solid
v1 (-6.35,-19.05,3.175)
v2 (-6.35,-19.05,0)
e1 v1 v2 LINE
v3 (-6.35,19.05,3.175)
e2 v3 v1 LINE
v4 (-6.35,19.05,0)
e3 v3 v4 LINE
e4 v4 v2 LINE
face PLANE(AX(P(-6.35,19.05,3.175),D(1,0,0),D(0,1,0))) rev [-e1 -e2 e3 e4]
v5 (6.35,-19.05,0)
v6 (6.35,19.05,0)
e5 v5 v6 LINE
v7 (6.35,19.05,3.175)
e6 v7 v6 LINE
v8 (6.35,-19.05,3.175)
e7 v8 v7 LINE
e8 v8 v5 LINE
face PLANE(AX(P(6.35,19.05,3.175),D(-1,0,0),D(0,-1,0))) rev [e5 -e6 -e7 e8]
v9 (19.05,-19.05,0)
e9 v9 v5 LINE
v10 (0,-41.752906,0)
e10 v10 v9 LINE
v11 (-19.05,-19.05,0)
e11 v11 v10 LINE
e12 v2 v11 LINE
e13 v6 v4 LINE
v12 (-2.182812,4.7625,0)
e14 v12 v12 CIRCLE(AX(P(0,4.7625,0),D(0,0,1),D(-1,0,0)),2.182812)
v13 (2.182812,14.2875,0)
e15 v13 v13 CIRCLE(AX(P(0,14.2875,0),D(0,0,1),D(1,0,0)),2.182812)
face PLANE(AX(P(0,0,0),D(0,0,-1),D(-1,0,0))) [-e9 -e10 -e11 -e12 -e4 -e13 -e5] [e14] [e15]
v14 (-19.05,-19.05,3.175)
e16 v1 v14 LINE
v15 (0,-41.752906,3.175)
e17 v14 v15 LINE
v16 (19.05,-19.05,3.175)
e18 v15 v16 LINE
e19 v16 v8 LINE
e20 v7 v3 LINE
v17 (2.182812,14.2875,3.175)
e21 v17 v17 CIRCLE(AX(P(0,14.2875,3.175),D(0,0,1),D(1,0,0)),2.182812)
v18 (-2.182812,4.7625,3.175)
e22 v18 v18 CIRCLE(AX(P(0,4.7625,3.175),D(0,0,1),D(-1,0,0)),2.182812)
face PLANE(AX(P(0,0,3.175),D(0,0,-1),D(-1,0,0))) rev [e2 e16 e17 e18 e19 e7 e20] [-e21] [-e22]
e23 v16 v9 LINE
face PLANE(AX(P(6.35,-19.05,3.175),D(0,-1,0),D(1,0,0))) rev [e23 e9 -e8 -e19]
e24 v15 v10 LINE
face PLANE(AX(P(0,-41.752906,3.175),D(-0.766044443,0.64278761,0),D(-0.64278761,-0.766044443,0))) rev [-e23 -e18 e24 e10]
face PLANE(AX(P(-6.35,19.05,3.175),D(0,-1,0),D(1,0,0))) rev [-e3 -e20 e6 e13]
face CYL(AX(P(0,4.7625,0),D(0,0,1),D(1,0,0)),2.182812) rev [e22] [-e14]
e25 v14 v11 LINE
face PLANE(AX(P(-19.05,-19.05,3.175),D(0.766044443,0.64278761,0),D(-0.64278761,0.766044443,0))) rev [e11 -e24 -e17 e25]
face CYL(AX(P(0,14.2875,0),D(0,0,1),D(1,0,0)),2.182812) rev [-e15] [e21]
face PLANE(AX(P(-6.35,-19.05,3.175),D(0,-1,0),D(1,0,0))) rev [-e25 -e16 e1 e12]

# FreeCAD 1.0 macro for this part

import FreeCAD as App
import Part
import Sketcher
Q = App.Units.Quantity

doc = App.newDocument("Part")
body = doc.addObject("PartDesign::Body", "Body")

# Sketch on XY plane
sketch1 = body.newObject("Sketcher::SketchObject", "Sketch")
sketch1.AttachmentSupport = (doc.getObject("XY_Plane"), [""])
sketch1.MapMode = "FlatFace"
sketch1.addGeometry(Part.LineSegment(App.Vector(-6.35, -19.05, 0), App.Vector(-19.05, -19.05, 0)), False)
sketch1.addGeometry(Part.LineSegment(App.Vector(-19.05, -19.05, 0), App.Vector(0, -41.752906, 0)), False)
sketch1.addGeometry(Part.LineSegment(App.Vector(0, -41.752906, 0), App.Vector(19.05, -19.05, 0)), False)
sketch1.addGeometry(Part.LineSegment(App.Vector(19.05, -19.05, 0), App.Vector(6.35, -19.05, 0)), False)
sketch1.addGeometry(Part.LineSegment(App.Vector(6.35, -19.05, 0), App.Vector(6.35, 19.05, 0)), False)
sketch1.addGeometry(Part.LineSegment(App.Vector(6.35, 19.05, 0), App.Vector(-6.35, 19.05, 0)), False)
sketch1.addGeometry(Part.LineSegment(App.Vector(-6.35, 19.05, 0), App.Vector(-6.35, -19.05, 0)), False)
sketch1.addConstraint(Sketcher.Constraint("Coincident", 0, 2, 1, 1))
sketch1.addConstraint(Sketcher.Constraint("Coincident", 1, 2, 2, 1))
sketch1.addConstraint(Sketcher.Constraint("Coincident", 2, 2, 3, 1))
sketch1.addConstraint(Sketcher.Constraint("Coincident", 3, 2, 4, 1))
sketch1.addConstraint(Sketcher.Constraint("Coincident", 4, 2, 5, 1))
sketch1.addConstraint(Sketcher.Constraint("Coincident", 5, 2, 6, 1))
sketch1.addConstraint(Sketcher.Constraint("Coincident", 6, 2, 0, 1))
sketch1.addConstraint(Sketcher.Constraint("Horizontal", 0))
sketch1.addConstraint(Sketcher.Constraint("Horizontal", 3))
sketch1.addConstraint(Sketcher.Constraint("Vertical", 4))
sketch1.addConstraint(Sketcher.Constraint("Horizontal", 5))
sketch1.addConstraint(Sketcher.Constraint("Vertical", 6))
sketch1.addConstraint(Sketcher.Constraint("Symmetric", 3, 2, 5, 2, -1, 1))
sketch1.addConstraint(Sketcher.Constraint("Symmetric", 0, 2, 2, 2, -2))
sketch1.addConstraint(Sketcher.Constraint("PointOnObject", 1, 2, -2))
sketch1.addConstraint(Sketcher.Constraint("Equal", 3, 5))
sketch1.addConstraint(Sketcher.Constraint("DistanceX", 0, 2, 0, 1, Q("0.5 in")))
sketch1.addConstraint(Sketcher.Constraint("DistanceY", 4, 1, 4, 2, Q("1.5 in")))
sketch1.addConstraint(Sketcher.Constraint("Angle", 1, Q("-50 deg")))
pad1 = body.newObject("PartDesign::Pad", "Pad")
pad1.Profile = sketch1
pad1.Length = Q("0.125 in")

# Sketch on XY plane
sketch2 = body.newObject("Sketcher::SketchObject", "Sketch001")
sketch2.AttachmentSupport = (doc.getObject("XY_Plane"), [""])
sketch2.MapMode = "FlatFace"
sketch2.AttachmentOffset = App.Placement(App.Vector(0, 0, 0.125 * 25.4), App.Rotation())
sketch2.addGeometry(Part.Circle(App.Vector(0, 14.2875, 0), App.Vector(0, 0, 1), 2.182812), False)
sketch2.addGeometry(Part.Circle(App.Vector(0, 4.7625, 0), App.Vector(0, 0, 1), 2.182812), False)
sketch2.addConstraint(Sketcher.Constraint("Equal", 0, 1))
sketch2.addConstraint(Sketcher.Constraint("PointOnObject", 0, 3, -2))
sketch2.addConstraint(Sketcher.Constraint("PointOnObject", 1, 3, -2))
sketch2.addConstraint(Sketcher.Constraint("Diameter", 0, Q("0.171875 in")))
sketch2.addConstraint(Sketcher.Constraint("DistanceY", -1, 1, 0, 3, Q("0.5625 in")))
sketch2.addConstraint(Sketcher.Constraint("DistanceY", -1, 1, 1, 3, Q("0.1875 in")))
pocket1 = body.newObject("PartDesign::Pocket", "Pocket")
pocket1.Profile = sketch2
pocket1.Type = "ThroughAll"

doc.recompute()
